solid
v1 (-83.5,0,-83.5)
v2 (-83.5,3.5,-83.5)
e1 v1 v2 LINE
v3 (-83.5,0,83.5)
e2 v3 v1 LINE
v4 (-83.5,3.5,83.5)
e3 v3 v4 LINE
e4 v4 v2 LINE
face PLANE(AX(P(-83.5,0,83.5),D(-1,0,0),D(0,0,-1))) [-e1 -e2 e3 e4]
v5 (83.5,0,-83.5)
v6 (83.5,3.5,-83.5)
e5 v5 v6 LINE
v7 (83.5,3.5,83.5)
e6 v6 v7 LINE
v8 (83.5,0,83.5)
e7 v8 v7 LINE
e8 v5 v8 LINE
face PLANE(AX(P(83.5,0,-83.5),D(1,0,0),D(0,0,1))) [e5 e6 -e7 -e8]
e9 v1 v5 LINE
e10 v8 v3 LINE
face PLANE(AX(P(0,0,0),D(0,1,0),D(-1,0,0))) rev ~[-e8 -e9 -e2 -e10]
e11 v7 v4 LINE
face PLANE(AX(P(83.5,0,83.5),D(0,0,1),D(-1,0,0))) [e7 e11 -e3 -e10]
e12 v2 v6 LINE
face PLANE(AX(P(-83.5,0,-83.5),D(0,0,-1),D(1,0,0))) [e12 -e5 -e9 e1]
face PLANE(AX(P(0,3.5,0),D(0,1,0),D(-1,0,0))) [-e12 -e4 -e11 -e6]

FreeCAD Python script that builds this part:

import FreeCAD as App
import Part
import Sketcher


def add_polygon(sketch, points):
    """Adds a closed chain of lines whose ends are joined by coincident constraints."""
    first, n = sketch.GeometryCount, len(points)
    for a, b in zip(points, points[1:] + points[:1]):
        sketch.addGeometry(Part.LineSegment(App.Vector(*a, 0), App.Vector(*b, 0)), False)
    for i in range(n):
        sketch.addConstraint(Sketcher.Constraint("Coincident", first + i, 2, first + (i + 1) % n, 1))

doc = App.newDocument("Part")
body = doc.addObject("PartDesign::Body", "Body")

sketch1 = doc.addObject("Sketcher::SketchObject", "Sketch")
body.addObject(sketch1)
sketch1.AttachmentSupport = (doc.XZ_Plane, [""])
sketch1.MapMode = "FlatFace"
add_polygon(sketch1, [(84, -84), (-84, -84), (-84, 84), (84, 84)])
sketch1.addConstraint([
    Sketcher.Constraint("Horizontal", 0),
    Sketcher.Constraint("Vertical", 1),
    Sketcher.Constraint("Horizontal", 2),
    Sketcher.Constraint("Vertical", 3),
    Sketcher.Constraint("Symmetric", 0, 2, 2, 2, -1, 1),
    Sketcher.Constraint("Equal", 2, 1),
    Sketcher.Constraint("DistanceX", 0, 2, 0, 1, 167.0),
])
pad1 = doc.addObject("PartDesign::Pad", "Pad")
body.addObject(pad1)
pad1.Profile = sketch1
pad1.Length = 3.5
pad1.Reversed = True

doc.recompute()
